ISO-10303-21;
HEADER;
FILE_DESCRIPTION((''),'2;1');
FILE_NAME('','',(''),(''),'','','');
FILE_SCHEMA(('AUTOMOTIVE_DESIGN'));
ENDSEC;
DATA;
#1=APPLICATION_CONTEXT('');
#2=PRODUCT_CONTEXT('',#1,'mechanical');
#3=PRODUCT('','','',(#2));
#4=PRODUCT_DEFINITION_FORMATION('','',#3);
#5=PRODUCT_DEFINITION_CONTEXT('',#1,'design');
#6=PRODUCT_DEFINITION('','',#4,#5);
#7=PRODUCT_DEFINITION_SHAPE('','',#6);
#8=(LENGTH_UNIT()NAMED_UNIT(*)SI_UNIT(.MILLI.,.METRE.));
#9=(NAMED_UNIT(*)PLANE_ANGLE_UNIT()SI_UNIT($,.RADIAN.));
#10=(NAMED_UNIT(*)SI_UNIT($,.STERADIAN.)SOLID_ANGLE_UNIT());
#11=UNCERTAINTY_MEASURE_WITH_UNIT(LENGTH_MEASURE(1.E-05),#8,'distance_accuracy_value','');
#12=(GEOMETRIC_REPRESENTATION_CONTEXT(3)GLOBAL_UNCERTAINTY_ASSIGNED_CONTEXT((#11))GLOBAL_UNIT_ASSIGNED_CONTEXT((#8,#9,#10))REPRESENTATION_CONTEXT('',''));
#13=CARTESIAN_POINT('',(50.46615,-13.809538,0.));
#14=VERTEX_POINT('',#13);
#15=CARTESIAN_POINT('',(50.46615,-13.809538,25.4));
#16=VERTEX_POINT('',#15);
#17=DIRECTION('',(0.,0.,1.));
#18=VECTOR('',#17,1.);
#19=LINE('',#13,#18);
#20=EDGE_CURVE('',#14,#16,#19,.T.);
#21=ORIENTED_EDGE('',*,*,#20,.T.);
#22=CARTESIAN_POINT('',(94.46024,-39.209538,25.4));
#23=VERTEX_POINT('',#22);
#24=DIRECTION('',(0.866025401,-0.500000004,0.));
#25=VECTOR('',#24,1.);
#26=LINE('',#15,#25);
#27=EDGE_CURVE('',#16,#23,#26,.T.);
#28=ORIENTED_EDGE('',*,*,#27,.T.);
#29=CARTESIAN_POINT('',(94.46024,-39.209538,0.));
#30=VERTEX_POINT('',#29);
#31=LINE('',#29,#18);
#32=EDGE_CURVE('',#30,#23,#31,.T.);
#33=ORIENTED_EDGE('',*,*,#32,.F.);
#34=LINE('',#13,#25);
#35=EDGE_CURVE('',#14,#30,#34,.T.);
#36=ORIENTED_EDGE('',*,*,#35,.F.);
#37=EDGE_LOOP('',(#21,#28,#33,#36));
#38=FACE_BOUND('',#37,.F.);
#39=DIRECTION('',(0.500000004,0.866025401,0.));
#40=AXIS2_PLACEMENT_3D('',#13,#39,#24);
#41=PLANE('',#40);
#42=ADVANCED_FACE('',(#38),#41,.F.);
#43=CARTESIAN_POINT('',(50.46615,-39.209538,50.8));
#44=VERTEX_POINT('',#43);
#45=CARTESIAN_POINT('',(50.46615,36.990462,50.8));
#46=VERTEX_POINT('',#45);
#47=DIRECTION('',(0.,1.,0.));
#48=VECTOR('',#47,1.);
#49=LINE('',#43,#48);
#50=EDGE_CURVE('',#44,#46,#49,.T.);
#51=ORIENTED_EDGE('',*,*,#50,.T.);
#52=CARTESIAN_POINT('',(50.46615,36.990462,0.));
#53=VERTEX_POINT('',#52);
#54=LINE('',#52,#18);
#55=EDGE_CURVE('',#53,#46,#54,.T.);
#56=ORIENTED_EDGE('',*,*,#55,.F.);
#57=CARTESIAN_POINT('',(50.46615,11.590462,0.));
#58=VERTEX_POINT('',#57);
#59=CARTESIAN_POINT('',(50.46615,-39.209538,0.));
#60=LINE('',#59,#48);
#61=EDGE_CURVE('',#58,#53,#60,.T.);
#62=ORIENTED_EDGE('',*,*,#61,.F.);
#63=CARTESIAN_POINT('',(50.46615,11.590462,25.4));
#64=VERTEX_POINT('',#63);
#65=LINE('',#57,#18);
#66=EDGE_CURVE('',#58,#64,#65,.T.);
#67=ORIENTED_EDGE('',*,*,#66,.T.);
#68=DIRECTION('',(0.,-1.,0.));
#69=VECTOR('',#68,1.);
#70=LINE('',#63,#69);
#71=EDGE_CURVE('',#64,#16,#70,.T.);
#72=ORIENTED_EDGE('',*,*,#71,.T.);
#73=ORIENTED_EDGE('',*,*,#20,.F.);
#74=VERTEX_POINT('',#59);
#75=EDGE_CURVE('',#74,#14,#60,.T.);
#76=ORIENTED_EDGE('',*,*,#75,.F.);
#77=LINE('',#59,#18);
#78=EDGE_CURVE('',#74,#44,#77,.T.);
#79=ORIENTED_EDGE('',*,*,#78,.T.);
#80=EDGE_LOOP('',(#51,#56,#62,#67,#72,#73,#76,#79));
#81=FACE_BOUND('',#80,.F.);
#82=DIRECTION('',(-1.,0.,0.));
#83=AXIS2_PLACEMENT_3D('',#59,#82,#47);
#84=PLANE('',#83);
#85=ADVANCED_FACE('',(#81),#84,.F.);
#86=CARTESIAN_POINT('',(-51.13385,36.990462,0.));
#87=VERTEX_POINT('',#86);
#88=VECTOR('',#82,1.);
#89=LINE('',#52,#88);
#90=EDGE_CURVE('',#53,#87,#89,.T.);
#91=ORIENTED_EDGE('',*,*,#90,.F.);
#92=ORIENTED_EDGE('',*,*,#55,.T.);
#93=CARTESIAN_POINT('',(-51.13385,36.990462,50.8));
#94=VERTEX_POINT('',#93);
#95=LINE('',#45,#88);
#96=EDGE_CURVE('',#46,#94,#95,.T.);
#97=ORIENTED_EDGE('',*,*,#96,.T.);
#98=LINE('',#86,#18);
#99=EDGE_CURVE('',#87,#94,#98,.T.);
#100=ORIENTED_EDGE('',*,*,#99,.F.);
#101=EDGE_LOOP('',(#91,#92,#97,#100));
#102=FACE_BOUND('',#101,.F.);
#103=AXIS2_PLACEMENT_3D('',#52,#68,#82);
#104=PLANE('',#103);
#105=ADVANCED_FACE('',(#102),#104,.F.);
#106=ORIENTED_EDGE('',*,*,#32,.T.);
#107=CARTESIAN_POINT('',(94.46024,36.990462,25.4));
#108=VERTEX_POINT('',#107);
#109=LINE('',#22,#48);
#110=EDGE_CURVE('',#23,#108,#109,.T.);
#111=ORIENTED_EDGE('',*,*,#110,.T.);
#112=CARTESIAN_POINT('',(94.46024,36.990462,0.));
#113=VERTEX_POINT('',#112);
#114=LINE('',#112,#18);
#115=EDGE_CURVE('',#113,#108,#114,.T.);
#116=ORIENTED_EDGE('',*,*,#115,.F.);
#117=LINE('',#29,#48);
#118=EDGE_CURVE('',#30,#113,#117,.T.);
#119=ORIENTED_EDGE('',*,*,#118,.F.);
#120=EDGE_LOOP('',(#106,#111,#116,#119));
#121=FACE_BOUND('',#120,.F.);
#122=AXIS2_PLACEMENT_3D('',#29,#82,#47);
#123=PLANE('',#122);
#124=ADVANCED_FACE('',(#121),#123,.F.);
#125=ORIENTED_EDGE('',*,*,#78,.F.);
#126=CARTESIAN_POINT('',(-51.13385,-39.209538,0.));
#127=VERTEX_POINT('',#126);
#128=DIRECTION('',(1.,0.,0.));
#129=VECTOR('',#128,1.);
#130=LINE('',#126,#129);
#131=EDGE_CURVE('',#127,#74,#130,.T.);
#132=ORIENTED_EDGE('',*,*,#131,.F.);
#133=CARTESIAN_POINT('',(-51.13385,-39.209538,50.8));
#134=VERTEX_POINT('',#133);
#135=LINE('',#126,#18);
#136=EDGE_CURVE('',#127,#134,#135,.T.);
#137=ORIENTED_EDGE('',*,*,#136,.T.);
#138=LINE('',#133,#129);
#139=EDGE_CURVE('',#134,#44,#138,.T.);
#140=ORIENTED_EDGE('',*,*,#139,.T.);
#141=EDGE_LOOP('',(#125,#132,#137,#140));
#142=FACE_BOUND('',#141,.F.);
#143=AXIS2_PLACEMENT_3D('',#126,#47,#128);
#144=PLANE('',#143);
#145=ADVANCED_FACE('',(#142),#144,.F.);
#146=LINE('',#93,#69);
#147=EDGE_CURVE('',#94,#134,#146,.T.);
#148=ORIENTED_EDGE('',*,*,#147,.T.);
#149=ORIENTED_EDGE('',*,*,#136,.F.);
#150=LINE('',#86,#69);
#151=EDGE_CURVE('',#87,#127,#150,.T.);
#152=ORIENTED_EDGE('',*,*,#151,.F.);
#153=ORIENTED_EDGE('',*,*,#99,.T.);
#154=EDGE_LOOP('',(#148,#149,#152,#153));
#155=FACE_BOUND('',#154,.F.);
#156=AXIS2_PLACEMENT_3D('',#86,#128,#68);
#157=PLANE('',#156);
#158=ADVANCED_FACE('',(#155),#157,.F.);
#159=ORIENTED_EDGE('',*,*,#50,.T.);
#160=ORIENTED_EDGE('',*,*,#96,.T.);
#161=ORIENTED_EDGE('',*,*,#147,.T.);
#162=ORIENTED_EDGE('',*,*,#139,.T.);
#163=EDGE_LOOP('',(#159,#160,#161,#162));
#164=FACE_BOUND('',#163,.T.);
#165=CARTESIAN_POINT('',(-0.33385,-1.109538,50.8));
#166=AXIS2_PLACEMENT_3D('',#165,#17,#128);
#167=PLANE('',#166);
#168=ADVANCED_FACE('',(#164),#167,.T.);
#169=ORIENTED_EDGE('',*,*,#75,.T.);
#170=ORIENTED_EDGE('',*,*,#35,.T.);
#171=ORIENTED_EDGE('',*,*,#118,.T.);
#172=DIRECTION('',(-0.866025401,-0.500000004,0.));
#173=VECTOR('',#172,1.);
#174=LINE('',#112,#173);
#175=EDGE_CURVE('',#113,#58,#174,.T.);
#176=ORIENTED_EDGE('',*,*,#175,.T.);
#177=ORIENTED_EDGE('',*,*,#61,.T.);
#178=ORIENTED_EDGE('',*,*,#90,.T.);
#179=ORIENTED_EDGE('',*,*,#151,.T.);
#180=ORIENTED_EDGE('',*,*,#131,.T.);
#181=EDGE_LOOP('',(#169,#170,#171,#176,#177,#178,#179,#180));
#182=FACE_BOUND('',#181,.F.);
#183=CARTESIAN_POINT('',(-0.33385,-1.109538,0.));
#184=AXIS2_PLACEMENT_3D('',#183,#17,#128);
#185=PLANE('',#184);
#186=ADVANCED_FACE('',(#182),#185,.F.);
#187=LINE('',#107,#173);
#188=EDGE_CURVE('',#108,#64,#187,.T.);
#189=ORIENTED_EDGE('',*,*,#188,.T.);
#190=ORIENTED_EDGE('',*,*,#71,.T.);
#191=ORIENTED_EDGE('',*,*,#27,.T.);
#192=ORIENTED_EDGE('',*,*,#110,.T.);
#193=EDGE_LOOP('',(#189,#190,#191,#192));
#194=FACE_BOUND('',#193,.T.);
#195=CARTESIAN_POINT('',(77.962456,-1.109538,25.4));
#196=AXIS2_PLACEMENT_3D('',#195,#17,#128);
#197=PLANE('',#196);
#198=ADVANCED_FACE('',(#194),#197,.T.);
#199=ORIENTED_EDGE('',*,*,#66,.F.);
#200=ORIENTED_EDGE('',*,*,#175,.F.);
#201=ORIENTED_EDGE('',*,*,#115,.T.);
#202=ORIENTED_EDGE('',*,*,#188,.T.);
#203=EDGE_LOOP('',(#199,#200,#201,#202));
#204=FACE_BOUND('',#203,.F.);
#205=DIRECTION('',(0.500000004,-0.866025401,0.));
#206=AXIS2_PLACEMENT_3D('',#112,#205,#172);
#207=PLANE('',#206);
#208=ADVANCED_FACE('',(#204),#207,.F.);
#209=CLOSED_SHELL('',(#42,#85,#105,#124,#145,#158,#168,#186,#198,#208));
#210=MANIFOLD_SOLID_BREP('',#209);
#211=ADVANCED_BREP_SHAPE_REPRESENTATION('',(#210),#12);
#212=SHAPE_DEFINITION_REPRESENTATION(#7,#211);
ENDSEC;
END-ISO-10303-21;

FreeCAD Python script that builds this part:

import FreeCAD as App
import Part
import Sketcher
Q = App.Units.Quantity


def add_polygon(sketch, points):
    """Adds a closed chain of lines whose ends are joined by coincident constraints."""
    first, n = sketch.GeometryCount, len(points)
    for a, b in zip(points, points[1:] + points[:1]):
        sketch.addGeometry(Part.LineSegment(App.Vector(*a, 0), App.Vector(*b, 0)), False)
    for i in range(n):
        sketch.addConstraint(Sketcher.Constraint("Coincident", first + i, 2, first + (i + 1) % n, 1))

doc = App.newDocument("Part")
body = doc.addObject("PartDesign::Body", "Body")

sketch1 = doc.addObject("Sketcher::SketchObject", "Sketch")
body.addObject(sketch1)
sketch1.AttachmentSupport = (doc.XY_Plane, [""])
sketch1.MapMode = "FlatFace"
add_polygon(sketch1, [(94, 37), (50, 12), (50, -14), (94, -39)])
sketch1.addConstraint(Sketcher.Constraint("Vertical", 1))
sketch1.addConstraint(Sketcher.Constraint("Vertical", 3))
sketch1.addConstraint(Sketcher.Constraint("Equal", 0, 2))
sketch1.addConstraint(Sketcher.Constraint("DistanceY", 1, 2, 1, 1, Q("1 in")))
sketch1.addConstraint(Sketcher.Constraint("DistanceY", 3, 1, 3, 2, Q("3 in")))
sketch1.addConstraint(Sketcher.Constraint("Distance", 0, Q("2 in")))
sketch1.addConstraint(Sketcher.Constraint("DistanceX", -1, 1, 0, 2, 50.46615))
sketch1.addConstraint(Sketcher.Constraint("DistanceY", 2, 2, -1, 1, 39.209538))
pad1 = doc.addObject("PartDesign::Pad", "Pad")
body.addObject(pad1)
pad1.Profile = sketch1
pad1.Length = Q("1 in")

sketch2 = doc.addObject("Sketcher::SketchObject", "Sketch001")
body.addObject(sketch2)
sketch2.AttachmentSupport = (doc.XY_Plane, [""])
sketch2.MapMode = "FlatFace"
add_polygon(sketch2, [(50, 37), (-51, 37), (-51, -39), (50, -39)])
sketch2.addConstraint(Sketcher.Constraint("Horizontal", 0))
sketch2.addConstraint(Sketcher.Constraint("Vertical", 1))
sketch2.addConstraint(Sketcher.Constraint("Horizontal", 2))
sketch2.addConstraint(Sketcher.Constraint("Vertical", 3))
sketch2.addConstraint(Sketcher.Constraint("DistanceX", 0, 2, 0, 1, Q("4 in")))
sketch2.addConstraint(Sketcher.Constraint("DistanceY", 1, 2, 1, 1, Q("3 in")))
sketch2.addConstraint(Sketcher.Constraint("DistanceX", 0, 2, -1, 1, 51.13385))
sketch2.addConstraint(Sketcher.Constraint("DistanceY", 1, 2, -1, 1, 39.209538))
pad2 = doc.addObject("PartDesign::Pad", "Pad001")
body.addObject(pad2)
pad2.Profile = sketch2
pad2.Length = Q("2 in")

doc.recompute()
